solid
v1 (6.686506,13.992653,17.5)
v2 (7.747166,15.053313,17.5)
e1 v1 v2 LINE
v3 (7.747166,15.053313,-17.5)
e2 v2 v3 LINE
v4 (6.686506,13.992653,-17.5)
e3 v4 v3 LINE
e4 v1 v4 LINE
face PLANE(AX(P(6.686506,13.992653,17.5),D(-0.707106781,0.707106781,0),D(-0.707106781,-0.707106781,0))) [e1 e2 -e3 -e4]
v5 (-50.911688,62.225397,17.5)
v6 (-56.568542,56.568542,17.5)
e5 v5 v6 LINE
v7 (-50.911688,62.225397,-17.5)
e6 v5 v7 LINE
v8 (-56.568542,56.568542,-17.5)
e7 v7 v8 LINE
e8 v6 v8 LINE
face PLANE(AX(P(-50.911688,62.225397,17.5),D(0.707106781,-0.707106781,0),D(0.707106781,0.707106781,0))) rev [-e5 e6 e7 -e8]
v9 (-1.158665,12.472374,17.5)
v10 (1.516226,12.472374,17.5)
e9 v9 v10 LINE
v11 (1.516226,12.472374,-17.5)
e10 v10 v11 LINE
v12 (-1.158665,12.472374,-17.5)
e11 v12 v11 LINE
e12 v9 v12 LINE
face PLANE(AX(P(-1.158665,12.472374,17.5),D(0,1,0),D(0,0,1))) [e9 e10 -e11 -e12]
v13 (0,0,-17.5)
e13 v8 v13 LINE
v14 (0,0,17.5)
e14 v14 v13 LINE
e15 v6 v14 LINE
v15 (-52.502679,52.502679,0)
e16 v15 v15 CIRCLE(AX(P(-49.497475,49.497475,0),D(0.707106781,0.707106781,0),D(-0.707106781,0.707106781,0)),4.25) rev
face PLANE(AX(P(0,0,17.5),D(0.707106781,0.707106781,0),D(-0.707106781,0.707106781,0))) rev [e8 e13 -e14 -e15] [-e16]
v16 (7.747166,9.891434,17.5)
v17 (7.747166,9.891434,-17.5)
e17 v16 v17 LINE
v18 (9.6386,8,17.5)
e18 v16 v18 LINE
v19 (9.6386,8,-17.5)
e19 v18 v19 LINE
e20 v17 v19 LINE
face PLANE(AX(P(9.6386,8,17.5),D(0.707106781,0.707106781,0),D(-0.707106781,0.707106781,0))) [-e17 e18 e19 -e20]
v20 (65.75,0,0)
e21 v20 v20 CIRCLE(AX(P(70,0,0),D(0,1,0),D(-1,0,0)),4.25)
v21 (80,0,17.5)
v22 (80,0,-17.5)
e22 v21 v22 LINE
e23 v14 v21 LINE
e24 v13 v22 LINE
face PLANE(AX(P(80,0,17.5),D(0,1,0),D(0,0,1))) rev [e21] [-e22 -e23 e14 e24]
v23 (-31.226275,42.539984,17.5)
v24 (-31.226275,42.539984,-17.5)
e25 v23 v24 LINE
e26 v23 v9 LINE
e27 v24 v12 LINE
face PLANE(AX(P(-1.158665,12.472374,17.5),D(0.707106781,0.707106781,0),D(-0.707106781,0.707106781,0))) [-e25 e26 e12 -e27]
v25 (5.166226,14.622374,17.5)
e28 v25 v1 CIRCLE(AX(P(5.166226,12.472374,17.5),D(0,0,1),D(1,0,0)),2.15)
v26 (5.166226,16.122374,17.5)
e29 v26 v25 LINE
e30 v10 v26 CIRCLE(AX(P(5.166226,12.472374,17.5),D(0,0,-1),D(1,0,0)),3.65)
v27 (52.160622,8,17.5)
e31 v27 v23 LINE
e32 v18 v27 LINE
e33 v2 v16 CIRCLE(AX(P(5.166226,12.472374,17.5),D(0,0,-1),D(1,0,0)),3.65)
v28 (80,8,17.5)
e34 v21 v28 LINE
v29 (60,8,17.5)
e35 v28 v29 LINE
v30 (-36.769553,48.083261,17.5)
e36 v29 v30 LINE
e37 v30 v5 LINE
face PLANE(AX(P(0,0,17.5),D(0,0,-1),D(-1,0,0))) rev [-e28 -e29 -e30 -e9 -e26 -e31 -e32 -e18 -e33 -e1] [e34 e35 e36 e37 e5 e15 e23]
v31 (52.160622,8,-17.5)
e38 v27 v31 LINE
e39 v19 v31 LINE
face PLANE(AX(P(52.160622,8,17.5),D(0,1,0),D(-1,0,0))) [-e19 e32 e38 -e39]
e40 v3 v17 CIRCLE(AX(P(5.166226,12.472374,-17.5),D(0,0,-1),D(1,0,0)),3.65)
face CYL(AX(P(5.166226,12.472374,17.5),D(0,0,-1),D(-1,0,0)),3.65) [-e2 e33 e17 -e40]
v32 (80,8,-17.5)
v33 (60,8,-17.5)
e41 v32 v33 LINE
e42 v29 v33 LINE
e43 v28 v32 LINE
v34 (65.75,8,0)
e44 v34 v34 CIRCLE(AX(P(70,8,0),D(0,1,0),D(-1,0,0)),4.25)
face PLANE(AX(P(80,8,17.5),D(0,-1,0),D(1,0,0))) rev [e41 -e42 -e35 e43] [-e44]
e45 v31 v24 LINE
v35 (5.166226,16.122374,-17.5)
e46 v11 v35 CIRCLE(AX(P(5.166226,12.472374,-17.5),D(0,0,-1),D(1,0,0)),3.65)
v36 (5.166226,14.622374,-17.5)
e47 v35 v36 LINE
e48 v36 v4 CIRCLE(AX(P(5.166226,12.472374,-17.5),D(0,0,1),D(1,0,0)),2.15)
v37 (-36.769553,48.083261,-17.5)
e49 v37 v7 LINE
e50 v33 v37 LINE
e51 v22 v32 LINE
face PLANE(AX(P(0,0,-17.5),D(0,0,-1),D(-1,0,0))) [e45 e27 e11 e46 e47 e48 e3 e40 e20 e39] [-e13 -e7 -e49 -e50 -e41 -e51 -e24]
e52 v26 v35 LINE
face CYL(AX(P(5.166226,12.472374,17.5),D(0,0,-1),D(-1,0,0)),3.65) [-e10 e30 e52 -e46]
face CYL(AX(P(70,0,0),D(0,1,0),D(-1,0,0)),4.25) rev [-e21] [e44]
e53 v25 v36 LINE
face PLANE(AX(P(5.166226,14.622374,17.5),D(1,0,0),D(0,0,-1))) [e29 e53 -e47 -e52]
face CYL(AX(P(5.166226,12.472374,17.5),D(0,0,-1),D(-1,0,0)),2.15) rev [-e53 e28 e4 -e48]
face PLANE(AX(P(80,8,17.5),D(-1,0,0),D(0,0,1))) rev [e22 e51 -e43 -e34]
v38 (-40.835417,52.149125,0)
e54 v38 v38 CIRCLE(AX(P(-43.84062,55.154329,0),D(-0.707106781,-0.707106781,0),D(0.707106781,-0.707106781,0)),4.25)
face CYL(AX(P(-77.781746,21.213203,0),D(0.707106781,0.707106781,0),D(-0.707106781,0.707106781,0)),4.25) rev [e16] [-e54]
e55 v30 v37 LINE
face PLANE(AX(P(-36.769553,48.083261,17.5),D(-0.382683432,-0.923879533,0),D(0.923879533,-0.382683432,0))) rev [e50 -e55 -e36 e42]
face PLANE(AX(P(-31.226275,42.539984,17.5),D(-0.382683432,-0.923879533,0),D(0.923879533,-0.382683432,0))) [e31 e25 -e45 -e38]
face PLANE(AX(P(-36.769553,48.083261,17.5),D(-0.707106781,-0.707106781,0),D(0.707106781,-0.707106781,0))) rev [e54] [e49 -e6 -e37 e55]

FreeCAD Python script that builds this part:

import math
import FreeCAD as App
import Part
import Sketcher
Q = App.Units.Quantity

doc = App.newDocument("Part")
body = doc.addObject("PartDesign::Body", "Body")

# Sketch on XY plane
sketch1 = body.newObject("Sketcher::SketchObject", "Sketch")
sketch1.AttachmentSupport = (doc.getObject("XY_Plane"), [""])
sketch1.MapMode = "FlatFace"
sketch1.addGeometry([
    Part.LineSegment(App.Vector(0, 0, 0), App.Vector(80, 0, 0)),  # 0
    Part.LineSegment(App.Vector(80, 0, 0), App.Vector(80, 8, 0)),  # 1
    Part.LineSegment(App.Vector(80, 8, 0), App.Vector(60, 8, 0)),  # 2
    Part.LineSegment(App.Vector(60, 8, 0), App.Vector(-36.8, 48.1, 0)),  # 3
    Part.LineSegment(App.Vector(-36.8, 48.1, 0), App.Vector(-50.9, 62.2, 0)),  # 4
    Part.LineSegment(App.Vector(-50.9, 62.2, 0), App.Vector(-56.6, 56.6, 0)),  # 5
    Part.LineSegment(App.Vector(-56.6, 56.6, 0), App.Vector(0, 0, 0)),  # 6
    Part.LineSegment(App.Vector(52.2, 8, 0), App.Vector(9.6, 8, 0)),  # 7
    Part.LineSegment(App.Vector(9.6, 8, 0), App.Vector(7.7, 9.9, 0)),  # 8
    Part.ArcOfCircle(Part.Circle(App.Vector(5.2, 12.5, 0), App.Vector(0, 0, 1), 3.6), math.radians(-45), math.radians(45)),  # 9
    Part.LineSegment(App.Vector(7.7, 15.1, 0), App.Vector(6.7, 14, 0)),  # 10
    Part.ArcOfCircle(Part.Circle(App.Vector(5.2, 12.5, 0), App.Vector(0, 0, 1), 2.1), math.radians(90), math.radians(405)),  # 11
    Part.LineSegment(App.Vector(5.2, 14.6, 0), App.Vector(5.2, 16.1, 0)),  # 12
    Part.ArcOfCircle(Part.Circle(App.Vector(5.2, 12.5, 0), App.Vector(0, 0, 1), 3.7), math.radians(90), math.radians(180)),  # 13
    Part.LineSegment(App.Vector(1.5, 12.5, 0), App.Vector(-1.2, 12.5, 0)),  # 14
    Part.LineSegment(App.Vector(-1.2, 12.5, 0), App.Vector(-31.2, 42.5, 0)),  # 15
    Part.LineSegment(App.Vector(-31.2, 42.5, 0), App.Vector(52.2, 8, 0)),  # 16
], False)
sketch1.addConstraint([
    Sketcher.Constraint("Coincident", 0, 2, 1, 1),
    Sketcher.Constraint("Coincident", 1, 2, 2, 1),
    Sketcher.Constraint("Coincident", 2, 2, 3, 1),
    Sketcher.Constraint("Coincident", 3, 2, 4, 1),
    Sketcher.Constraint("Coincident", 4, 2, 5, 1),
    Sketcher.Constraint("Coincident", 5, 2, 6, 1),
    Sketcher.Constraint("Coincident", 6, 2, 0, 1),
    Sketcher.Constraint("Coincident", 7, 2, 8, 1),
    Sketcher.Constraint("Coincident", 8, 2, 9, 1),
    Sketcher.Constraint("Coincident", 9, 2, 10, 1),
    Sketcher.Constraint("Coincident", 10, 2, 11, 2),
    Sketcher.Constraint("Coincident", 11, 1, 12, 1),
    Sketcher.Constraint("Coincident", 12, 2, 13, 1),
    Sketcher.Constraint("Coincident", 13, 2, 14, 1),
    Sketcher.Constraint("Coincident", 14, 2, 15, 1),
    Sketcher.Constraint("Coincident", 15, 2, 16, 1),
    Sketcher.Constraint("Coincident", 16, 2, 7, 1),
    Sketcher.Constraint("Horizontal", 0),
    Sketcher.Constraint("Vertical", 1),
    Sketcher.Constraint("Horizontal", 2),
    Sketcher.Constraint("Horizontal", 7),
    Sketcher.Constraint("Vertical", 12),
    Sketcher.Constraint("Horizontal", 14),
    Sketcher.Constraint("Coincident", 6, 2, -1, 1),
    Sketcher.Constraint("Coincident", 11, 3, 9, 3),
    Sketcher.Constraint("Coincident", 13, 3, 9, 3),
    Sketcher.Constraint("Equal", 9, 13),
    Sketcher.Constraint("Perpendicular", 4, 5),
    Sketcher.Constraint("Perpendicular", 5, 6),
    Sketcher.Constraint("Parallel", 6, 8),
    Sketcher.Constraint("Perpendicular", 8, 10),
    Sketcher.Constraint("Perpendicular", 10, 15),
    Sketcher.Constraint("Parallel", 3, 16),
    Sketcher.Constraint("Horizontal", 2, 2, 7, 2),
    Sketcher.Constraint("Horizontal", 11, 3, 13, 2),
    Sketcher.Constraint("Vertical", 8, 2, 9, 2),
    Sketcher.Constraint("Vertical", 13, 3, 11, 1),
    Sketcher.Constraint("DistanceX", 0, 1, 0, 2, 80.0),
    Sketcher.Constraint("DistanceX", 2, 2, 2, 1, 20.0),
    Sketcher.Constraint("DistanceY", 1, 1, 1, 2, 8.0),
    Sketcher.Constraint("Angle", 4, Q("135 deg")),
    Sketcher.Constraint("Radius", 9, 3.65),
    Sketcher.Constraint("Radius", 11, 2.15),
    Sketcher.Constraint("Distance", 4, 20.0),
    Sketcher.Constraint("Distance", 5, 8.0),
    Sketcher.Constraint("Distance", 6, 80.0),
    Sketcher.Constraint("DistanceX", 14, 2, 14, 1, 2.674892),
    Sketcher.Constraint("DistanceX", -1, 1, 7, 2, 9.6386),
    Sketcher.Constraint("DistanceX", 15, 2, 13, 2, 32.742502),
    Sketcher.Constraint("Distance", 8, 2.674892),
    Sketcher.Constraint("DistanceX", 7, 2, 7, 1, 42.522022),
])
pad1 = body.newObject("PartDesign::Pad", "Pad")
pad1.Profile = sketch1
pad1.Length = 35
pad1.Midplane = True

# Sketch on XZ plane
sketch2 = body.newObject("Sketcher::SketchObject", "Sketch001")
sketch2.AttachmentSupport = (doc.getObject("XZ_Plane"), [""])
sketch2.MapMode = "FlatFace"
sketch2.AttachmentOffset = App.Placement(App.Vector(0, 0, -8), App.Rotation())
sketch2.addGeometry(Part.Circle(App.Vector(70, 0, 0), App.Vector(0, 0, 1), 4.2), False)
sketch2.addConstraint([
    Sketcher.Constraint("PointOnObject", 0, 3, -1),
    Sketcher.Constraint("Diameter", 0, 8.5),
    Sketcher.Constraint("DistanceX", -1, 1, 0, 3, 70.0),
])
pocket1 = body.newObject("PartDesign::Pocket", "Pocket")
pocket1.Profile = sketch2
pocket1.Type = "ThroughAll"
pocket1.Reversed = True
doc.recompute()

datumplane = body.newObject("PartDesign::Plane", "DatumPlane")
datumplane.Placement = App.Placement(App.Vector(0, 0, 0), App.Rotation(App.Vector(0.382683432, 0.923879533, 0), App.Vector(0, 0, -1), App.Vector(-0.923879533, 0.382683432, 0), "ZXY"))
mirrored = body.newObject("PartDesign::Mirrored", "Mirrored")
mirrored.Originals = [pocket1]
mirrored.MirrorPlane = (datumplane, [""])
body.Tip = mirrored

doc.recompute()
